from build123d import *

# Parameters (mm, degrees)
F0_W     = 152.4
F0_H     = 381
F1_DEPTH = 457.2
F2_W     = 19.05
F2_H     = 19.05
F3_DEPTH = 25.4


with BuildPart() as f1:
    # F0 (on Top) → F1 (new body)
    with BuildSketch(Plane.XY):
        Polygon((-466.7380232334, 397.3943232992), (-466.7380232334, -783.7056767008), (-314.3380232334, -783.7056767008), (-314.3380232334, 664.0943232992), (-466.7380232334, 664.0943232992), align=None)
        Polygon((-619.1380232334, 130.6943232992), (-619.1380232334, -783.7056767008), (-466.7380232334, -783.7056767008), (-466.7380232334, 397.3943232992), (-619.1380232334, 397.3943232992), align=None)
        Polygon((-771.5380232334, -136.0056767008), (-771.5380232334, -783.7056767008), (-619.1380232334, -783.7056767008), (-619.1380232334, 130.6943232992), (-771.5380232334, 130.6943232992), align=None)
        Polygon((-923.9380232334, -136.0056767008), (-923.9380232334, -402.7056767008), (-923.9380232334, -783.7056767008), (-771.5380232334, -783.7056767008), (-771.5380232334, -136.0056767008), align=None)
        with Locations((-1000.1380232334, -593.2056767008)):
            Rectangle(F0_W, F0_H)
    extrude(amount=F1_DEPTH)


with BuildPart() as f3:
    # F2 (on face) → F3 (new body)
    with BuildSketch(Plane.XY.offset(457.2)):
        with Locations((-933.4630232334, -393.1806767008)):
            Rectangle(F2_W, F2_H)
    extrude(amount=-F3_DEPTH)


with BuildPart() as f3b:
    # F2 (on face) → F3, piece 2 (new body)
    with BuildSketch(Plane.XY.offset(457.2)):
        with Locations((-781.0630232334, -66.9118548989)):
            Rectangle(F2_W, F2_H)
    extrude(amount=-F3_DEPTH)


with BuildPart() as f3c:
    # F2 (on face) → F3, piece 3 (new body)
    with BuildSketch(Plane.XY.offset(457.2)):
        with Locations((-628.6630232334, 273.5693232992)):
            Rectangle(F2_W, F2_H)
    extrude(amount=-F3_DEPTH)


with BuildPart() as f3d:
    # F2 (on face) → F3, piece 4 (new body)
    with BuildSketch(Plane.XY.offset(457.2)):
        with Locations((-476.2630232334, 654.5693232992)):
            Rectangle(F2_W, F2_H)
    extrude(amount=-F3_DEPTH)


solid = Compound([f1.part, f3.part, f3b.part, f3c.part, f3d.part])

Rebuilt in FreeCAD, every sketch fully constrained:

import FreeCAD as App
import Part
import Sketcher
from FreeCAD import Vector
Q = App.Units.Quantity

doc = App.newDocument("Part")
body = doc.addObject("PartDesign::Body", "Body")

# Sketch on XY plane
sketch1 = body.newObject("Sketcher::SketchObject", "Sketch")
sketch1.AttachmentSupport = (doc.getObject("XY_Plane"), [""])
sketch1.MapMode = "FlatFace"
sketch1.addGeometry([
    Part.LineSegment(Vector(-314, -784, 0), Vector(-314, 664, 0)),  # 0
    Part.LineSegment(Vector(-314, 664, 0), Vector(-467, 664, 0)),  # 1
    Part.LineSegment(Vector(-467, 664, 0), Vector(-467, 397, 0)),  # 2
    Part.LineSegment(Vector(-467, 397, 0), Vector(-619, 397, 0)),  # 3
    Part.LineSegment(Vector(-619, 397, 0), Vector(-619, 131, 0)),  # 4
    Part.LineSegment(Vector(-619, 131, 0), Vector(-772, 131, 0)),  # 5
    Part.LineSegment(Vector(-772, 131, 0), Vector(-772, -136, 0)),  # 6
    Part.LineSegment(Vector(-772, -136, 0), Vector(-924, -136, 0)),  # 7
    Part.LineSegment(Vector(-924, -136, 0), Vector(-924, -403, 0)),  # 8
    Part.LineSegment(Vector(-924, -403, 0), Vector(-1076, -403, 0)),  # 9
    Part.LineSegment(Vector(-1076, -403, 0), Vector(-1076, -784, 0)),  # 10
    Part.LineSegment(Vector(-1076, -784, 0), Vector(-314, -784, 0)),  # 11
], False)
sketch1.addConstraint([
    Sketcher.Constraint("Coincident", 0, 2, 1, 1),
    Sketcher.Constraint("Coincident", 1, 2, 2, 1),
    Sketcher.Constraint("Coincident", 2, 2, 3, 1),
    Sketcher.Constraint("Coincident", 3, 2, 4, 1),
    Sketcher.Constraint("Coincident", 4, 2, 5, 1),
    Sketcher.Constraint("Coincident", 5, 2, 6, 1),
    Sketcher.Constraint("Coincident", 6, 2, 7, 1),
    Sketcher.Constraint("Coincident", 7, 2, 8, 1),
    Sketcher.Constraint("Coincident", 8, 2, 9, 1),
    Sketcher.Constraint("Coincident", 9, 2, 10, 1),
    Sketcher.Constraint("Coincident", 10, 2, 11, 1),
    Sketcher.Constraint("Coincident", 11, 2, 0, 1),
    Sketcher.Constraint("Vertical", 0),
    Sketcher.Constraint("Horizontal", 1),
    Sketcher.Constraint("Vertical", 2),
    Sketcher.Constraint("Horizontal", 3),
    Sketcher.Constraint("Vertical", 4),
    Sketcher.Constraint("Horizontal", 5),
    Sketcher.Constraint("Vertical", 6),
    Sketcher.Constraint("Horizontal", 7),
    Sketcher.Constraint("Vertical", 8),
    Sketcher.Constraint("Horizontal", 9),
    Sketcher.Constraint("Vertical", 10),
    Sketcher.Constraint("Horizontal", 11),
    Sketcher.Constraint("Equal", 1, 3),
    Sketcher.Constraint("Equal", 3, 5),
    Sketcher.Constraint("Equal", 5, 7),
    Sketcher.Constraint("Equal", 7, 9),
    Sketcher.Constraint("Equal", 2, 4),
    Sketcher.Constraint("Equal", 4, 6),
    Sketcher.Constraint("Equal", 6, 8),
    Sketcher.Constraint("DistanceX", 1, 2, 1, 1, Q("6 in")),
    Sketcher.Constraint("DistanceY", 0, 1, 0, 2, Q("57 in")),
    Sketcher.Constraint("DistanceY", 10, 2, 10, 1, Q("15 in")),
    Sketcher.Constraint("DistanceX", 0, 2, -1, 1, 314.338023),
    Sketcher.Constraint("DistanceY", -1, 1, 0, 2, 664.094323),
])
pad1 = body.newObject("PartDesign::Pad", "Pad")
pad1.Profile = sketch1
pad1.Length = Q("18 in")
body2 = doc.addObject("PartDesign::Body", "Body001")

# Sketch on XY plane
sketch2 = body2.newObject("Sketcher::SketchObject", "Sketch001")
sketch2.AttachmentSupport = (doc.getObject("XY_Plane001"), [""])
sketch2.MapMode = "FlatFace"
sketch2.AttachmentOffset = App.Placement(Vector(0, 0, 18 * 25.4), App.Rotation())
sketch2.addGeometry([
    Part.LineSegment(Vector(-943, -384, 0), Vector(-943, -403, 0)),
    Part.LineSegment(Vector(-943, -403, 0), Vector(-924, -403, 0)),
    Part.LineSegment(Vector(-924, -403, 0), Vector(-924, -384, 0)),
    Part.LineSegment(Vector(-924, -384, 0), Vector(-943, -384, 0)),
], False)
sketch2.addConstraint([
    Sketcher.Constraint("Coincident", 0, 2, 1, 1),
    Sketcher.Constraint("Coincident", 1, 2, 2, 1),
    Sketcher.Constraint("Coincident", 2, 2, 3, 1),
    Sketcher.Constraint("Coincident", 3, 2, 0, 1),
    Sketcher.Constraint("Vertical", 0),
    Sketcher.Constraint("Horizontal", 1),
    Sketcher.Constraint("Vertical", 2),
    Sketcher.Constraint("Horizontal", 3),
    Sketcher.Constraint("Equal", 3, 0),
    Sketcher.Constraint("DistanceX", 1, 1, 1, 2, Q("0.75 in")),
    Sketcher.Constraint("DistanceX", 0, 2, -1, 1, 942.988023),
    Sketcher.Constraint("DistanceY", 0, 2, -1, 1, 402.705677),
])
pad2 = body2.newObject("PartDesign::Pad", "Pad001")
pad2.Profile = sketch2
pad2.Length = Q("1 in")
pad2.Reversed = True
body3 = doc.addObject("PartDesign::Body", "Body002")

# Sketch on XY plane
sketch3 = body3.newObject("Sketcher::SketchObject", "Sketch002")
sketch3.AttachmentSupport = (doc.getObject("XY_Plane002"), [""])
sketch3.MapMode = "FlatFace"
sketch3.AttachmentOffset = App.Placement(Vector(0, 0, 18 * 25.4), App.Rotation())
sketch3.addGeometry([
    Part.LineSegment(Vector(-791, -57, 0), Vector(-791, -76, 0)),
    Part.LineSegment(Vector(-791, -76, 0), Vector(-772, -76, 0)),
    Part.LineSegment(Vector(-772, -76, 0), Vector(-772, -57, 0)),
    Part.LineSegment(Vector(-772, -57, 0), Vector(-791, -57, 0)),
], False)
sketch3.addConstraint([
    Sketcher.Constraint("Coincident", 0, 2, 1, 1),
    Sketcher.Constraint("Coincident", 1, 2, 2, 1),
    Sketcher.Constraint("Coincident", 2, 2, 3, 1),
    Sketcher.Constraint("Coincident", 3, 2, 0, 1),
    Sketcher.Constraint("Vertical", 0),
    Sketcher.Constraint("Horizontal", 1),
    Sketcher.Constraint("Vertical", 2),
    Sketcher.Constraint("Horizontal", 3),
    Sketcher.Constraint("Equal", 3, 0),
    Sketcher.Constraint("DistanceX", 1, 1, 1, 2, Q("0.75 in")),
    Sketcher.Constraint("DistanceX", 0, 2, -1, 1, 790.588023),
    Sketcher.Constraint("DistanceY", 0, 2, -1, 1, 76.436855),
])
pad3 = body3.newObject("PartDesign::Pad", "Pad002")
pad3.Profile = sketch3
pad3.Length = Q("1 in")
pad3.Reversed = True
body4 = doc.addObject("PartDesign::Body", "Body003")

# Sketch on XY plane
sketch4 = body4.newObject("Sketcher::SketchObject", "Sketch003")
sketch4.AttachmentSupport = (doc.getObject("XY_Plane003"), [""])
sketch4.MapMode = "FlatFace"
sketch4.AttachmentOffset = App.Placement(Vector(0, 0, 18 * 25.4), App.Rotation())
sketch4.addGeometry([
    Part.LineSegment(Vector(-638, 283, 0), Vector(-638, 264, 0)),
    Part.LineSegment(Vector(-638, 264, 0), Vector(-619, 264, 0)),
    Part.LineSegment(Vector(-619, 264, 0), Vector(-619, 283, 0)),
    Part.LineSegment(Vector(-619, 283, 0), Vector(-638, 283, 0)),
], False)
sketch4.addConstraint([
    Sketcher.Constraint("Coincident", 0, 2, 1, 1),
    Sketcher.Constraint("Coincident", 1, 2, 2, 1),
    Sketcher.Constraint("Coincident", 2, 2, 3, 1),
    Sketcher.Constraint("Coincident", 3, 2, 0, 1),
    Sketcher.Constraint("Vertical", 0),
    Sketcher.Constraint("Horizontal", 1),
    Sketcher.Constraint("Vertical", 2),
    Sketcher.Constraint("Horizontal", 3),
    Sketcher.Constraint("Equal", 3, 0),
    Sketcher.Constraint("DistanceX", 1, 1, 1, 2, Q("0.75 in")),
    Sketcher.Constraint("DistanceX", 0, 2, -1, 1, 638.188023),
    Sketcher.Constraint("DistanceY", -1, 1, 0, 2, 264.044323),
])
pad4 = body4.newObject("PartDesign::Pad", "Pad003")
pad4.Profile = sketch4
pad4.Length = Q("1 in")
pad4.Reversed = True
body5 = doc.addObject("PartDesign::Body", "Body004")

# Sketch on XY plane
sketch5 = body5.newObject("Sketcher::SketchObject", "Sketch004")
sketch5.AttachmentSupport = (doc.getObject("XY_Plane004"), [""])
sketch5.MapMode = "FlatFace"
sketch5.AttachmentOffset = App.Placement(Vector(0, 0, 18 * 25.4), App.Rotation())
sketch5.addGeometry([
    Part.LineSegment(Vector(-486, 664, 0), Vector(-486, 645, 0)),
    Part.LineSegment(Vector(-486, 645, 0), Vector(-467, 645, 0)),
    Part.LineSegment(Vector(-467, 645, 0), Vector(-467, 664, 0)),
    Part.LineSegment(Vector(-467, 664, 0), Vector(-486, 664, 0)),
], False)
sketch5.addConstraint([
    Sketcher.Constraint("Coincident", 0, 2, 1, 1),
    Sketcher.Constraint("Coincident", 1, 2, 2, 1),
    Sketcher.Constraint("Coincident", 2, 2, 3, 1),
    Sketcher.Constraint("Coincident", 3, 2, 0, 1),
    Sketcher.Constraint("Vertical", 0),
    Sketcher.Constraint("Horizontal", 1),
    Sketcher.Constraint("Vertical", 2),
    Sketcher.Constraint("Horizontal", 3),
    Sketcher.Constraint("Equal", 3, 0),
    Sketcher.Constraint("DistanceX", 1, 1, 1, 2, Q("0.75 in")),
    Sketcher.Constraint("DistanceX", 0, 2, -1, 1, 485.788023),
    Sketcher.Constraint("DistanceY", -1, 1, 0, 2, 645.044323),
])
pad5 = body5.newObject("PartDesign::Pad", "Pad004")
pad5.Profile = sketch5
pad5.Length = Q("1 in")
pad5.Reversed = True

doc.recompute()
